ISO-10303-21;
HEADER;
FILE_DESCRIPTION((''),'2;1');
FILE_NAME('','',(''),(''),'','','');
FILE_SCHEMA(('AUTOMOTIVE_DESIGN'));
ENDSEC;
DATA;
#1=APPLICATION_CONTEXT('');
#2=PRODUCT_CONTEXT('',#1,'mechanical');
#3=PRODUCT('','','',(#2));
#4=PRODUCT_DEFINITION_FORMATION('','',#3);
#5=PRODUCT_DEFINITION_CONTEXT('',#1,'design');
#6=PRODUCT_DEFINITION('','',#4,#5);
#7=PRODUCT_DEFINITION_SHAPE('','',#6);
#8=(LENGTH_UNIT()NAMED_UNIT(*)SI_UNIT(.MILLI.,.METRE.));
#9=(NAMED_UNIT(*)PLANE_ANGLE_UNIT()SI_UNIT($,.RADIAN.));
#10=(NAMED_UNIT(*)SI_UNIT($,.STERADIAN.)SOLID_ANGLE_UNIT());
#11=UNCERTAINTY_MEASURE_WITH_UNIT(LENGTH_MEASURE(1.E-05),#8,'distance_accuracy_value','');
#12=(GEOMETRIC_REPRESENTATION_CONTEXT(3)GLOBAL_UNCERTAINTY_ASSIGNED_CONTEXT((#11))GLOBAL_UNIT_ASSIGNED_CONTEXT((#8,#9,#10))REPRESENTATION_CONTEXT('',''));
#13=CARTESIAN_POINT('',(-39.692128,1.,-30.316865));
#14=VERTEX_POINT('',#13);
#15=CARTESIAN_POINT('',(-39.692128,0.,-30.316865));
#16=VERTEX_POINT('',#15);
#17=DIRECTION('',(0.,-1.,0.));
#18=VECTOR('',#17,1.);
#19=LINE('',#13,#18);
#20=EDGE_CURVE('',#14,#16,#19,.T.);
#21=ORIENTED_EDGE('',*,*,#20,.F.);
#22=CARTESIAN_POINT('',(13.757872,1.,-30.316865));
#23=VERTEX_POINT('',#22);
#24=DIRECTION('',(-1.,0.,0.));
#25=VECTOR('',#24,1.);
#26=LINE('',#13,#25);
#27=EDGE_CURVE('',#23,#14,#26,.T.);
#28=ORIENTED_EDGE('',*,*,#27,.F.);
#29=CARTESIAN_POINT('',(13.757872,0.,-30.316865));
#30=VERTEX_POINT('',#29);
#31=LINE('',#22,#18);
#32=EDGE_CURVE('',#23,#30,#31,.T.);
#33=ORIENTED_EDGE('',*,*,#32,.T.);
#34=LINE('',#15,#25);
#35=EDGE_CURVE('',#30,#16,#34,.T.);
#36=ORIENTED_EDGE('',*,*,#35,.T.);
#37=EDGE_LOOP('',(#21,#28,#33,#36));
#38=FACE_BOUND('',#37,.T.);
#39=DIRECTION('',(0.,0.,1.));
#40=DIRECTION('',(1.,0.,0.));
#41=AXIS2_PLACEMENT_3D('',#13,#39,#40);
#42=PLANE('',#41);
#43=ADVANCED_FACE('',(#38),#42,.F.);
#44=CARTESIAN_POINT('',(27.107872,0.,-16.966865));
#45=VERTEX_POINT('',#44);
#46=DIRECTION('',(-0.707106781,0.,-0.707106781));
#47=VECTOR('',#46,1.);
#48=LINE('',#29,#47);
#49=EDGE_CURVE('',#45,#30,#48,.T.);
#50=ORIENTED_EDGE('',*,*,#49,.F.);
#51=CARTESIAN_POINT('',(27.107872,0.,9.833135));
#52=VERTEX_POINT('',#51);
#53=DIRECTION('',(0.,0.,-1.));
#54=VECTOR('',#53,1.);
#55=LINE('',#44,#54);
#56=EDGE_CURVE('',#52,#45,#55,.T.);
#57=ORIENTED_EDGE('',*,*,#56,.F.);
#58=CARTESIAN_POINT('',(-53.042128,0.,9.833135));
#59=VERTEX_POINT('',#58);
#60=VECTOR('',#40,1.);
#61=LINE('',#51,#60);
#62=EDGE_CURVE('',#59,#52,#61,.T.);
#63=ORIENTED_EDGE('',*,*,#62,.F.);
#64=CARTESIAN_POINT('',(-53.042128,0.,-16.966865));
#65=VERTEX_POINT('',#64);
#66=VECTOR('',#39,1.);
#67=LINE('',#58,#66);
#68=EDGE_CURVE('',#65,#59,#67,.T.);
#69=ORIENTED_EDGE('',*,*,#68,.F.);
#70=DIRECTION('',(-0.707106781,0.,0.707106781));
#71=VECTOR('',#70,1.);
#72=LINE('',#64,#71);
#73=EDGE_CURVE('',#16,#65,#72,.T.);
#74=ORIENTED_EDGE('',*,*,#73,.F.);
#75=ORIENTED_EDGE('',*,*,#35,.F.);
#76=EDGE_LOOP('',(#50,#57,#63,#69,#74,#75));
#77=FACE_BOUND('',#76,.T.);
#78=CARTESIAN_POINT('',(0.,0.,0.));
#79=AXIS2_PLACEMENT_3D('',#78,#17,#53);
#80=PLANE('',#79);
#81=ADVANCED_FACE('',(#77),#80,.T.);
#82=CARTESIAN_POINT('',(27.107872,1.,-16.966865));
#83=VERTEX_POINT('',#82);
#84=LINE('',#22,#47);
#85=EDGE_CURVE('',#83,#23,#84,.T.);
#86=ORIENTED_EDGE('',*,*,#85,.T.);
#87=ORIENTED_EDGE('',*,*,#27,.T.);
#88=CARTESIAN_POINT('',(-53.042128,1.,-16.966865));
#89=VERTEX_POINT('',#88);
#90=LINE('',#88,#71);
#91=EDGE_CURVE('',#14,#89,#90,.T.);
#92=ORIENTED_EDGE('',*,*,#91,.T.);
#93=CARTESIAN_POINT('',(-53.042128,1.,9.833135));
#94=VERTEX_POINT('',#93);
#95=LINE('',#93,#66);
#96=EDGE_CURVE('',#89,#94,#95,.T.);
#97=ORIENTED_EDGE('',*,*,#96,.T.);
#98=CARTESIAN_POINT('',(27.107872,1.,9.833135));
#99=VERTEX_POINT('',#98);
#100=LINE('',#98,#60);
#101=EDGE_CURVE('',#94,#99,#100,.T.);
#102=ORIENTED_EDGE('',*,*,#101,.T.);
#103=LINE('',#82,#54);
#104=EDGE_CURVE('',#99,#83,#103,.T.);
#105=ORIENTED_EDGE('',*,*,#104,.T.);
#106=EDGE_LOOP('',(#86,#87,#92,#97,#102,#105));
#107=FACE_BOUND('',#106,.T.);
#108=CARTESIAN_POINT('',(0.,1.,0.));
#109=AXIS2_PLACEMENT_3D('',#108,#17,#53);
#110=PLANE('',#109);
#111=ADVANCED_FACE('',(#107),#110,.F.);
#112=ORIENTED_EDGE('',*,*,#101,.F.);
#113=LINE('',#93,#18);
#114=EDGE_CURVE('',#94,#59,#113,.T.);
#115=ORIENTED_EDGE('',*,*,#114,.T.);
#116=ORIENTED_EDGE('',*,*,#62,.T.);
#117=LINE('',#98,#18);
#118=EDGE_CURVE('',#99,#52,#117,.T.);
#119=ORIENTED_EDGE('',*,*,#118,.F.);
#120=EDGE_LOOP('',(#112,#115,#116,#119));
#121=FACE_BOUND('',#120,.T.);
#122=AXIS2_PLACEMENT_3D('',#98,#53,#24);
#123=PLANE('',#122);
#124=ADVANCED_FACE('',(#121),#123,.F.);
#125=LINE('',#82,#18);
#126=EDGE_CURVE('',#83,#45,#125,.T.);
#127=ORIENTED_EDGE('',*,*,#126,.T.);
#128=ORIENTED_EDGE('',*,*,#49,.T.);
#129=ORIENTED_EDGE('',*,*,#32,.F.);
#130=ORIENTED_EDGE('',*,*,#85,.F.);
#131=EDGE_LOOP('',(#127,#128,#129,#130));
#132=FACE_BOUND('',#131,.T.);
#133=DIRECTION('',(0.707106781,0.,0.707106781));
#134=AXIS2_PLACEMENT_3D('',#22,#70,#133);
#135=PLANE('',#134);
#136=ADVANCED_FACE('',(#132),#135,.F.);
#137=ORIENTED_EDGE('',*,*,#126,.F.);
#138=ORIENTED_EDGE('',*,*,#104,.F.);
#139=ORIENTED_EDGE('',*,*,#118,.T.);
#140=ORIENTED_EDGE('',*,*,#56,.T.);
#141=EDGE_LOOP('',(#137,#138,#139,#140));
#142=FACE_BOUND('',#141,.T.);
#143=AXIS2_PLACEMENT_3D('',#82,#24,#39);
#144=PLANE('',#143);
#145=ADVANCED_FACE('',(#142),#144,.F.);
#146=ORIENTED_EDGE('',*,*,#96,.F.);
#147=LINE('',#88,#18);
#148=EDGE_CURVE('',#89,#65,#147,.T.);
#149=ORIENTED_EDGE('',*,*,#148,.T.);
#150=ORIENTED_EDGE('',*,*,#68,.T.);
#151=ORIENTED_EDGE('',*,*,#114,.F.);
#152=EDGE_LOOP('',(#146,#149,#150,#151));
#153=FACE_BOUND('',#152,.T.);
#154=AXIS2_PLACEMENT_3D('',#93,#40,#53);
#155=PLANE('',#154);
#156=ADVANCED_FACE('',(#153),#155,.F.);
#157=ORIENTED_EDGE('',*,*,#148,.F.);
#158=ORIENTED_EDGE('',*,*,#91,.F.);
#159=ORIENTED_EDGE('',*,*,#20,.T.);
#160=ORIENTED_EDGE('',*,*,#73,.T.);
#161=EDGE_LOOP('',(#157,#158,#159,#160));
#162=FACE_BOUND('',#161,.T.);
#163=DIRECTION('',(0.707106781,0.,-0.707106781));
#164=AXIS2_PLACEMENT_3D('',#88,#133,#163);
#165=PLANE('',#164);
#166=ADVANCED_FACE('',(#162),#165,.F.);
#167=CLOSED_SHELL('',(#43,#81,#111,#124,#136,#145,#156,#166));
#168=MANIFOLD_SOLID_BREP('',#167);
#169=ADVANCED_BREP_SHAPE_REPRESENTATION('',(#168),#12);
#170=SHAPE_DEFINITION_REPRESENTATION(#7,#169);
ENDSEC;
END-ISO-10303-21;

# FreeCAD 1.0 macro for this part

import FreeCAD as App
import Part
import Sketcher

V = App.Vector

doc = App.newDocument("Part")
body = doc.addObject("PartDesign::Body", "Body")

# Sketch on XZ plane
sketch1 = body.newObject("Sketcher::SketchObject", "Sketch")
sketch1.AttachmentSupport = (doc.getObject("XZ_Plane"), [""])
sketch1.MapMode = "FlatFace"
sketch1.addGeometry(Part.LineSegment(V(14, -30, 0), V(-40, -30, 0)), False)
sketch1.addGeometry(Part.LineSegment(V(-40, -30, 0), V(-53, -17, 0)), False)
sketch1.addGeometry(Part.LineSegment(V(-53, -17, 0), V(-53, 10, 0)), False)
sketch1.addGeometry(Part.LineSegment(V(-53, 10, 0), V(27, 10, 0)), False)
sketch1.addGeometry(Part.LineSegment(V(27, 10, 0), V(27, -17, 0)), False)
sketch1.addGeometry(Part.LineSegment(V(27, -17, 0), V(14, -30, 0)), False)
sketch1.addConstraint(Sketcher.Constraint("Coincident", 0, 2, 1, 1))
sketch1.addConstraint(Sketcher.Constraint("Coincident", 1, 2, 2, 1))
sketch1.addConstraint(Sketcher.Constraint("Coincident", 2, 2, 3, 1))
sketch1.addConstraint(Sketcher.Constraint("Coincident", 3, 2, 4, 1))
sketch1.addConstraint(Sketcher.Constraint("Coincident", 4, 2, 5, 1))
sketch1.addConstraint(Sketcher.Constraint("Coincident", 5, 2, 0, 1))
sketch1.addConstraint(Sketcher.Constraint("Horizontal", 0))
sketch1.addConstraint(Sketcher.Constraint("Vertical", 2))
sketch1.addConstraint(Sketcher.Constraint("Horizontal", 3))
sketch1.addConstraint(Sketcher.Constraint("Vertical", 4))
sketch1.addConstraint(Sketcher.Constraint("Perpendicular", 1, 5))
sketch1.addConstraint(Sketcher.Constraint("Horizontal", 1, 2, 4, 2))
sketch1.addConstraint(Sketcher.Constraint("Equal", 1, 5))
sketch1.addConstraint(Sketcher.Constraint("DistanceY", 2, 1, 2, 2, 26.8))
sketch1.addConstraint(Sketcher.Constraint("DistanceX", 0, 2, 0, 1, 53.45))
sketch1.addConstraint(Sketcher.Constraint("DistanceX", 3, 1, 3, 2, 80.15))
sketch1.addConstraint(Sketcher.Constraint("DistanceX", 0, 2, -1, 1, 39.692128))
sketch1.addConstraint(Sketcher.Constraint("DistanceY", 0, 2, -1, 1, 30.316865))
pad1 = body.newObject("PartDesign::Pad", "Pad")
pad1.Profile = sketch1
pad1.Length = 1
pad1.Reversed = True

doc.recompute()
